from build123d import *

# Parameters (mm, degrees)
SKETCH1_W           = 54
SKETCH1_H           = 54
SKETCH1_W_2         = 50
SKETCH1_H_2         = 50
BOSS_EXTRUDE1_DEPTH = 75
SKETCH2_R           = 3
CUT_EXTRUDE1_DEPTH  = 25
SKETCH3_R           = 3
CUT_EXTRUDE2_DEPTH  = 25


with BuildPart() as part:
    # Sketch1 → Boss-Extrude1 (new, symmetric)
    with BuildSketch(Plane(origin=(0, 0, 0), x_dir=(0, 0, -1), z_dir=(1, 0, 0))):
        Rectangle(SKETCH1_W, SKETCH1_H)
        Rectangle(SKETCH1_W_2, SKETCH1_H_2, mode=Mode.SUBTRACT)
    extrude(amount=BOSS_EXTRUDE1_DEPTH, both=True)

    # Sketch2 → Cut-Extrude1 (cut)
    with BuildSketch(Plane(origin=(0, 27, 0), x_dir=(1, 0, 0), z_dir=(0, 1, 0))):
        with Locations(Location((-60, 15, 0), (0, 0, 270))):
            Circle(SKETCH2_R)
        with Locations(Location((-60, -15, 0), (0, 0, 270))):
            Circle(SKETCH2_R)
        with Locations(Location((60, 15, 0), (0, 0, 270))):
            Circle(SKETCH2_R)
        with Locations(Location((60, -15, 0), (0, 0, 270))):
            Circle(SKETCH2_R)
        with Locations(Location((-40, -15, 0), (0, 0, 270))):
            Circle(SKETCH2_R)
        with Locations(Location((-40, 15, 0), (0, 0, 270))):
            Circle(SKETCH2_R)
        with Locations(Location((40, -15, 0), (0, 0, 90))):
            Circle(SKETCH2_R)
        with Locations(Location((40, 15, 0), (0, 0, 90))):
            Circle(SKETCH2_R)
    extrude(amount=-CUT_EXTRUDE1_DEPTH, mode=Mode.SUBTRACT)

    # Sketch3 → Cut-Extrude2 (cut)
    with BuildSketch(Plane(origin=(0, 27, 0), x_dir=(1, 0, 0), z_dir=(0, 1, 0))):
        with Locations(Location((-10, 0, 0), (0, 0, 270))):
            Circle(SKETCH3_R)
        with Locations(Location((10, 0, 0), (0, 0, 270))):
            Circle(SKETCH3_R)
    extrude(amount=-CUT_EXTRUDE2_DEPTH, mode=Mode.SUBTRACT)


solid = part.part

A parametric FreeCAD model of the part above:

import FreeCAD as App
import Part
import Sketcher
Q = App.Units.Quantity


def add_polygon(sketch, points):
    """Adds a closed chain of lines whose ends are joined by coincident constraints."""
    first, n = sketch.GeometryCount, len(points)
    for a, b in zip(points, points[1:] + points[:1]):
        sketch.addGeometry(Part.LineSegment(App.Vector(*a, 0), App.Vector(*b, 0)), False)
    for i in range(n):
        sketch.addConstraint(Sketcher.Constraint("Coincident", first + i, 2, first + (i + 1) % n, 1))

doc = App.newDocument("Part")
body = doc.addObject("PartDesign::Body", "Body")

sketch1 = doc.addObject("Sketcher::SketchObject", "Sketch")
body.addObject(sketch1)
sketch1.AttachmentSupport = (doc.YZ_Plane, [""])
sketch1.MapMode = "FlatFace"
add_polygon(sketch1, [(27, 27), (-27, 27), (-27, -27), (27, -27)])
add_polygon(sketch1, [(-25, -25), (-25, 25), (25, 25), (25, -25)])
sketch1.addConstraint([
    Sketcher.Constraint("Horizontal", 0),
    Sketcher.Constraint("Vertical", 1),
    Sketcher.Constraint("Horizontal", 2),
    Sketcher.Constraint("Vertical", 3),
    Sketcher.Constraint("Vertical", 4),
    Sketcher.Constraint("Horizontal", 5),
    Sketcher.Constraint("Vertical", 6),
    Sketcher.Constraint("Horizontal", 7),
    Sketcher.Constraint("Symmetric", 0, 2, 2, 2, -1, 1),
    Sketcher.Constraint("Symmetric", 4, 2, 6, 2, -1, 1),
    Sketcher.Constraint("Equal", 2, 1),
    Sketcher.Constraint("Equal", 7, 4),
    Sketcher.Constraint("DistanceX", 0, 2, 0, 1, Q("54 mm")),
    Sketcher.Constraint("DistanceX", 5, 1, 5, 2, Q("50 mm")),
])
pad1 = doc.addObject("PartDesign::Pad", "Pad")
body.addObject(pad1)
pad1.Profile = sketch1
pad1.Length = 150
pad1.Midplane = True

sketch2 = doc.addObject("Sketcher::SketchObject", "Sketch001")
body.addObject(sketch2)
sketch2.AttachmentSupport = (doc.XZ_Plane, [""])
sketch2.MapMode = "FlatFace"
sketch2.AttachmentOffset = App.Placement(App.Vector(0, 0, -27), App.Rotation())
sketch2.addGeometry([
    Part.Circle(App.Vector(-60, -15, 0), App.Vector(0, 0, 1), 3),
    Part.Circle(App.Vector(-60, 15, 0), App.Vector(0, 0, 1), 3),
    Part.Circle(App.Vector(60, -15, 0), App.Vector(0, 0, 1), 3),
    Part.Circle(App.Vector(60, 15, 0), App.Vector(0, 0, 1), 3),
    Part.Circle(App.Vector(-40, 15, 0), App.Vector(0, 0, 1), 3),
    Part.Circle(App.Vector(-40, -15, 0), App.Vector(0, 0, 1), 3),
    Part.Circle(App.Vector(40, 15, 0), App.Vector(0, 0, 1), 3),
    Part.Circle(App.Vector(40, -15, 0), App.Vector(0, 0, 1), 3),
], False)
sketch2.addConstraint([
    Sketcher.Constraint("Equal", 0, 1),
    Sketcher.Constraint("Equal", 1, 2),
    Sketcher.Constraint("Equal", 2, 3),
    Sketcher.Constraint("Equal", 3, 4),
    Sketcher.Constraint("Equal", 4, 5),
    Sketcher.Constraint("Equal", 5, 6),
    Sketcher.Constraint("Equal", 6, 7),
    Sketcher.Constraint("Symmetric", 1, 3, 2, 3, -1, 1),
    Sketcher.Constraint("Symmetric", 0, 3, 3, 3, -1, 1),
    Sketcher.Constraint("Symmetric", 5, 3, 6, 3, -1, 1),
    Sketcher.Constraint("Symmetric", 4, 3, 7, 3, -1, 1),
    Sketcher.Constraint("Symmetric", 0, 3, 2, 3, -2),
    Sketcher.Constraint("Symmetric", 4, 3, 6, 3, -2),
    Sketcher.Constraint("Horizontal", 3, 3, 4, 3),
    Sketcher.Constraint("Diameter", 0, Q("6 mm")),
    Sketcher.Constraint("DistanceX", 0, 3, -1, 1, Q("60 mm")),
    Sketcher.Constraint("DistanceY", 0, 3, -1, 1, Q("15 mm")),
    Sketcher.Constraint("DistanceX", 4, 3, -1, 1, Q("40 mm")),
])
pocket1 = doc.addObject("PartDesign::Pocket", "Pocket")
body.addObject(pocket1)
pocket1.Profile = sketch2
pocket1.Length = 25
pocket1.Reversed = True

sketch3 = doc.addObject("Sketcher::SketchObject", "Sketch002")
body.addObject(sketch3)
sketch3.AttachmentSupport = (doc.XZ_Plane, [""])
sketch3.MapMode = "FlatFace"
sketch3.AttachmentOffset = App.Placement(App.Vector(0, 0, -27), App.Rotation())
sketch3.addGeometry([
    Part.Circle(App.Vector(-10, 0, 0), App.Vector(0, 0, 1), 3),
    Part.Circle(App.Vector(10, 0, 0), App.Vector(0, 0, 1), 3),
], False)
sketch3.addConstraint([
    Sketcher.Constraint("Equal", 0, 1),
    Sketcher.Constraint("Symmetric", 0, 3, 1, 3, -1, 1),
    Sketcher.Constraint("PointOnObject", 0, 3, -1),
    Sketcher.Constraint("Diameter", 0, Q("6 mm")),
    Sketcher.Constraint("DistanceX", 0, 3, -1, 1, Q("10 mm")),
])
pocket2 = doc.addObject("PartDesign::Pocket", "Pocket001")
body.addObject(pocket2)
pocket2.Profile = sketch3
pocket2.Length = 25
pocket2.Reversed = True

doc.recompute()
